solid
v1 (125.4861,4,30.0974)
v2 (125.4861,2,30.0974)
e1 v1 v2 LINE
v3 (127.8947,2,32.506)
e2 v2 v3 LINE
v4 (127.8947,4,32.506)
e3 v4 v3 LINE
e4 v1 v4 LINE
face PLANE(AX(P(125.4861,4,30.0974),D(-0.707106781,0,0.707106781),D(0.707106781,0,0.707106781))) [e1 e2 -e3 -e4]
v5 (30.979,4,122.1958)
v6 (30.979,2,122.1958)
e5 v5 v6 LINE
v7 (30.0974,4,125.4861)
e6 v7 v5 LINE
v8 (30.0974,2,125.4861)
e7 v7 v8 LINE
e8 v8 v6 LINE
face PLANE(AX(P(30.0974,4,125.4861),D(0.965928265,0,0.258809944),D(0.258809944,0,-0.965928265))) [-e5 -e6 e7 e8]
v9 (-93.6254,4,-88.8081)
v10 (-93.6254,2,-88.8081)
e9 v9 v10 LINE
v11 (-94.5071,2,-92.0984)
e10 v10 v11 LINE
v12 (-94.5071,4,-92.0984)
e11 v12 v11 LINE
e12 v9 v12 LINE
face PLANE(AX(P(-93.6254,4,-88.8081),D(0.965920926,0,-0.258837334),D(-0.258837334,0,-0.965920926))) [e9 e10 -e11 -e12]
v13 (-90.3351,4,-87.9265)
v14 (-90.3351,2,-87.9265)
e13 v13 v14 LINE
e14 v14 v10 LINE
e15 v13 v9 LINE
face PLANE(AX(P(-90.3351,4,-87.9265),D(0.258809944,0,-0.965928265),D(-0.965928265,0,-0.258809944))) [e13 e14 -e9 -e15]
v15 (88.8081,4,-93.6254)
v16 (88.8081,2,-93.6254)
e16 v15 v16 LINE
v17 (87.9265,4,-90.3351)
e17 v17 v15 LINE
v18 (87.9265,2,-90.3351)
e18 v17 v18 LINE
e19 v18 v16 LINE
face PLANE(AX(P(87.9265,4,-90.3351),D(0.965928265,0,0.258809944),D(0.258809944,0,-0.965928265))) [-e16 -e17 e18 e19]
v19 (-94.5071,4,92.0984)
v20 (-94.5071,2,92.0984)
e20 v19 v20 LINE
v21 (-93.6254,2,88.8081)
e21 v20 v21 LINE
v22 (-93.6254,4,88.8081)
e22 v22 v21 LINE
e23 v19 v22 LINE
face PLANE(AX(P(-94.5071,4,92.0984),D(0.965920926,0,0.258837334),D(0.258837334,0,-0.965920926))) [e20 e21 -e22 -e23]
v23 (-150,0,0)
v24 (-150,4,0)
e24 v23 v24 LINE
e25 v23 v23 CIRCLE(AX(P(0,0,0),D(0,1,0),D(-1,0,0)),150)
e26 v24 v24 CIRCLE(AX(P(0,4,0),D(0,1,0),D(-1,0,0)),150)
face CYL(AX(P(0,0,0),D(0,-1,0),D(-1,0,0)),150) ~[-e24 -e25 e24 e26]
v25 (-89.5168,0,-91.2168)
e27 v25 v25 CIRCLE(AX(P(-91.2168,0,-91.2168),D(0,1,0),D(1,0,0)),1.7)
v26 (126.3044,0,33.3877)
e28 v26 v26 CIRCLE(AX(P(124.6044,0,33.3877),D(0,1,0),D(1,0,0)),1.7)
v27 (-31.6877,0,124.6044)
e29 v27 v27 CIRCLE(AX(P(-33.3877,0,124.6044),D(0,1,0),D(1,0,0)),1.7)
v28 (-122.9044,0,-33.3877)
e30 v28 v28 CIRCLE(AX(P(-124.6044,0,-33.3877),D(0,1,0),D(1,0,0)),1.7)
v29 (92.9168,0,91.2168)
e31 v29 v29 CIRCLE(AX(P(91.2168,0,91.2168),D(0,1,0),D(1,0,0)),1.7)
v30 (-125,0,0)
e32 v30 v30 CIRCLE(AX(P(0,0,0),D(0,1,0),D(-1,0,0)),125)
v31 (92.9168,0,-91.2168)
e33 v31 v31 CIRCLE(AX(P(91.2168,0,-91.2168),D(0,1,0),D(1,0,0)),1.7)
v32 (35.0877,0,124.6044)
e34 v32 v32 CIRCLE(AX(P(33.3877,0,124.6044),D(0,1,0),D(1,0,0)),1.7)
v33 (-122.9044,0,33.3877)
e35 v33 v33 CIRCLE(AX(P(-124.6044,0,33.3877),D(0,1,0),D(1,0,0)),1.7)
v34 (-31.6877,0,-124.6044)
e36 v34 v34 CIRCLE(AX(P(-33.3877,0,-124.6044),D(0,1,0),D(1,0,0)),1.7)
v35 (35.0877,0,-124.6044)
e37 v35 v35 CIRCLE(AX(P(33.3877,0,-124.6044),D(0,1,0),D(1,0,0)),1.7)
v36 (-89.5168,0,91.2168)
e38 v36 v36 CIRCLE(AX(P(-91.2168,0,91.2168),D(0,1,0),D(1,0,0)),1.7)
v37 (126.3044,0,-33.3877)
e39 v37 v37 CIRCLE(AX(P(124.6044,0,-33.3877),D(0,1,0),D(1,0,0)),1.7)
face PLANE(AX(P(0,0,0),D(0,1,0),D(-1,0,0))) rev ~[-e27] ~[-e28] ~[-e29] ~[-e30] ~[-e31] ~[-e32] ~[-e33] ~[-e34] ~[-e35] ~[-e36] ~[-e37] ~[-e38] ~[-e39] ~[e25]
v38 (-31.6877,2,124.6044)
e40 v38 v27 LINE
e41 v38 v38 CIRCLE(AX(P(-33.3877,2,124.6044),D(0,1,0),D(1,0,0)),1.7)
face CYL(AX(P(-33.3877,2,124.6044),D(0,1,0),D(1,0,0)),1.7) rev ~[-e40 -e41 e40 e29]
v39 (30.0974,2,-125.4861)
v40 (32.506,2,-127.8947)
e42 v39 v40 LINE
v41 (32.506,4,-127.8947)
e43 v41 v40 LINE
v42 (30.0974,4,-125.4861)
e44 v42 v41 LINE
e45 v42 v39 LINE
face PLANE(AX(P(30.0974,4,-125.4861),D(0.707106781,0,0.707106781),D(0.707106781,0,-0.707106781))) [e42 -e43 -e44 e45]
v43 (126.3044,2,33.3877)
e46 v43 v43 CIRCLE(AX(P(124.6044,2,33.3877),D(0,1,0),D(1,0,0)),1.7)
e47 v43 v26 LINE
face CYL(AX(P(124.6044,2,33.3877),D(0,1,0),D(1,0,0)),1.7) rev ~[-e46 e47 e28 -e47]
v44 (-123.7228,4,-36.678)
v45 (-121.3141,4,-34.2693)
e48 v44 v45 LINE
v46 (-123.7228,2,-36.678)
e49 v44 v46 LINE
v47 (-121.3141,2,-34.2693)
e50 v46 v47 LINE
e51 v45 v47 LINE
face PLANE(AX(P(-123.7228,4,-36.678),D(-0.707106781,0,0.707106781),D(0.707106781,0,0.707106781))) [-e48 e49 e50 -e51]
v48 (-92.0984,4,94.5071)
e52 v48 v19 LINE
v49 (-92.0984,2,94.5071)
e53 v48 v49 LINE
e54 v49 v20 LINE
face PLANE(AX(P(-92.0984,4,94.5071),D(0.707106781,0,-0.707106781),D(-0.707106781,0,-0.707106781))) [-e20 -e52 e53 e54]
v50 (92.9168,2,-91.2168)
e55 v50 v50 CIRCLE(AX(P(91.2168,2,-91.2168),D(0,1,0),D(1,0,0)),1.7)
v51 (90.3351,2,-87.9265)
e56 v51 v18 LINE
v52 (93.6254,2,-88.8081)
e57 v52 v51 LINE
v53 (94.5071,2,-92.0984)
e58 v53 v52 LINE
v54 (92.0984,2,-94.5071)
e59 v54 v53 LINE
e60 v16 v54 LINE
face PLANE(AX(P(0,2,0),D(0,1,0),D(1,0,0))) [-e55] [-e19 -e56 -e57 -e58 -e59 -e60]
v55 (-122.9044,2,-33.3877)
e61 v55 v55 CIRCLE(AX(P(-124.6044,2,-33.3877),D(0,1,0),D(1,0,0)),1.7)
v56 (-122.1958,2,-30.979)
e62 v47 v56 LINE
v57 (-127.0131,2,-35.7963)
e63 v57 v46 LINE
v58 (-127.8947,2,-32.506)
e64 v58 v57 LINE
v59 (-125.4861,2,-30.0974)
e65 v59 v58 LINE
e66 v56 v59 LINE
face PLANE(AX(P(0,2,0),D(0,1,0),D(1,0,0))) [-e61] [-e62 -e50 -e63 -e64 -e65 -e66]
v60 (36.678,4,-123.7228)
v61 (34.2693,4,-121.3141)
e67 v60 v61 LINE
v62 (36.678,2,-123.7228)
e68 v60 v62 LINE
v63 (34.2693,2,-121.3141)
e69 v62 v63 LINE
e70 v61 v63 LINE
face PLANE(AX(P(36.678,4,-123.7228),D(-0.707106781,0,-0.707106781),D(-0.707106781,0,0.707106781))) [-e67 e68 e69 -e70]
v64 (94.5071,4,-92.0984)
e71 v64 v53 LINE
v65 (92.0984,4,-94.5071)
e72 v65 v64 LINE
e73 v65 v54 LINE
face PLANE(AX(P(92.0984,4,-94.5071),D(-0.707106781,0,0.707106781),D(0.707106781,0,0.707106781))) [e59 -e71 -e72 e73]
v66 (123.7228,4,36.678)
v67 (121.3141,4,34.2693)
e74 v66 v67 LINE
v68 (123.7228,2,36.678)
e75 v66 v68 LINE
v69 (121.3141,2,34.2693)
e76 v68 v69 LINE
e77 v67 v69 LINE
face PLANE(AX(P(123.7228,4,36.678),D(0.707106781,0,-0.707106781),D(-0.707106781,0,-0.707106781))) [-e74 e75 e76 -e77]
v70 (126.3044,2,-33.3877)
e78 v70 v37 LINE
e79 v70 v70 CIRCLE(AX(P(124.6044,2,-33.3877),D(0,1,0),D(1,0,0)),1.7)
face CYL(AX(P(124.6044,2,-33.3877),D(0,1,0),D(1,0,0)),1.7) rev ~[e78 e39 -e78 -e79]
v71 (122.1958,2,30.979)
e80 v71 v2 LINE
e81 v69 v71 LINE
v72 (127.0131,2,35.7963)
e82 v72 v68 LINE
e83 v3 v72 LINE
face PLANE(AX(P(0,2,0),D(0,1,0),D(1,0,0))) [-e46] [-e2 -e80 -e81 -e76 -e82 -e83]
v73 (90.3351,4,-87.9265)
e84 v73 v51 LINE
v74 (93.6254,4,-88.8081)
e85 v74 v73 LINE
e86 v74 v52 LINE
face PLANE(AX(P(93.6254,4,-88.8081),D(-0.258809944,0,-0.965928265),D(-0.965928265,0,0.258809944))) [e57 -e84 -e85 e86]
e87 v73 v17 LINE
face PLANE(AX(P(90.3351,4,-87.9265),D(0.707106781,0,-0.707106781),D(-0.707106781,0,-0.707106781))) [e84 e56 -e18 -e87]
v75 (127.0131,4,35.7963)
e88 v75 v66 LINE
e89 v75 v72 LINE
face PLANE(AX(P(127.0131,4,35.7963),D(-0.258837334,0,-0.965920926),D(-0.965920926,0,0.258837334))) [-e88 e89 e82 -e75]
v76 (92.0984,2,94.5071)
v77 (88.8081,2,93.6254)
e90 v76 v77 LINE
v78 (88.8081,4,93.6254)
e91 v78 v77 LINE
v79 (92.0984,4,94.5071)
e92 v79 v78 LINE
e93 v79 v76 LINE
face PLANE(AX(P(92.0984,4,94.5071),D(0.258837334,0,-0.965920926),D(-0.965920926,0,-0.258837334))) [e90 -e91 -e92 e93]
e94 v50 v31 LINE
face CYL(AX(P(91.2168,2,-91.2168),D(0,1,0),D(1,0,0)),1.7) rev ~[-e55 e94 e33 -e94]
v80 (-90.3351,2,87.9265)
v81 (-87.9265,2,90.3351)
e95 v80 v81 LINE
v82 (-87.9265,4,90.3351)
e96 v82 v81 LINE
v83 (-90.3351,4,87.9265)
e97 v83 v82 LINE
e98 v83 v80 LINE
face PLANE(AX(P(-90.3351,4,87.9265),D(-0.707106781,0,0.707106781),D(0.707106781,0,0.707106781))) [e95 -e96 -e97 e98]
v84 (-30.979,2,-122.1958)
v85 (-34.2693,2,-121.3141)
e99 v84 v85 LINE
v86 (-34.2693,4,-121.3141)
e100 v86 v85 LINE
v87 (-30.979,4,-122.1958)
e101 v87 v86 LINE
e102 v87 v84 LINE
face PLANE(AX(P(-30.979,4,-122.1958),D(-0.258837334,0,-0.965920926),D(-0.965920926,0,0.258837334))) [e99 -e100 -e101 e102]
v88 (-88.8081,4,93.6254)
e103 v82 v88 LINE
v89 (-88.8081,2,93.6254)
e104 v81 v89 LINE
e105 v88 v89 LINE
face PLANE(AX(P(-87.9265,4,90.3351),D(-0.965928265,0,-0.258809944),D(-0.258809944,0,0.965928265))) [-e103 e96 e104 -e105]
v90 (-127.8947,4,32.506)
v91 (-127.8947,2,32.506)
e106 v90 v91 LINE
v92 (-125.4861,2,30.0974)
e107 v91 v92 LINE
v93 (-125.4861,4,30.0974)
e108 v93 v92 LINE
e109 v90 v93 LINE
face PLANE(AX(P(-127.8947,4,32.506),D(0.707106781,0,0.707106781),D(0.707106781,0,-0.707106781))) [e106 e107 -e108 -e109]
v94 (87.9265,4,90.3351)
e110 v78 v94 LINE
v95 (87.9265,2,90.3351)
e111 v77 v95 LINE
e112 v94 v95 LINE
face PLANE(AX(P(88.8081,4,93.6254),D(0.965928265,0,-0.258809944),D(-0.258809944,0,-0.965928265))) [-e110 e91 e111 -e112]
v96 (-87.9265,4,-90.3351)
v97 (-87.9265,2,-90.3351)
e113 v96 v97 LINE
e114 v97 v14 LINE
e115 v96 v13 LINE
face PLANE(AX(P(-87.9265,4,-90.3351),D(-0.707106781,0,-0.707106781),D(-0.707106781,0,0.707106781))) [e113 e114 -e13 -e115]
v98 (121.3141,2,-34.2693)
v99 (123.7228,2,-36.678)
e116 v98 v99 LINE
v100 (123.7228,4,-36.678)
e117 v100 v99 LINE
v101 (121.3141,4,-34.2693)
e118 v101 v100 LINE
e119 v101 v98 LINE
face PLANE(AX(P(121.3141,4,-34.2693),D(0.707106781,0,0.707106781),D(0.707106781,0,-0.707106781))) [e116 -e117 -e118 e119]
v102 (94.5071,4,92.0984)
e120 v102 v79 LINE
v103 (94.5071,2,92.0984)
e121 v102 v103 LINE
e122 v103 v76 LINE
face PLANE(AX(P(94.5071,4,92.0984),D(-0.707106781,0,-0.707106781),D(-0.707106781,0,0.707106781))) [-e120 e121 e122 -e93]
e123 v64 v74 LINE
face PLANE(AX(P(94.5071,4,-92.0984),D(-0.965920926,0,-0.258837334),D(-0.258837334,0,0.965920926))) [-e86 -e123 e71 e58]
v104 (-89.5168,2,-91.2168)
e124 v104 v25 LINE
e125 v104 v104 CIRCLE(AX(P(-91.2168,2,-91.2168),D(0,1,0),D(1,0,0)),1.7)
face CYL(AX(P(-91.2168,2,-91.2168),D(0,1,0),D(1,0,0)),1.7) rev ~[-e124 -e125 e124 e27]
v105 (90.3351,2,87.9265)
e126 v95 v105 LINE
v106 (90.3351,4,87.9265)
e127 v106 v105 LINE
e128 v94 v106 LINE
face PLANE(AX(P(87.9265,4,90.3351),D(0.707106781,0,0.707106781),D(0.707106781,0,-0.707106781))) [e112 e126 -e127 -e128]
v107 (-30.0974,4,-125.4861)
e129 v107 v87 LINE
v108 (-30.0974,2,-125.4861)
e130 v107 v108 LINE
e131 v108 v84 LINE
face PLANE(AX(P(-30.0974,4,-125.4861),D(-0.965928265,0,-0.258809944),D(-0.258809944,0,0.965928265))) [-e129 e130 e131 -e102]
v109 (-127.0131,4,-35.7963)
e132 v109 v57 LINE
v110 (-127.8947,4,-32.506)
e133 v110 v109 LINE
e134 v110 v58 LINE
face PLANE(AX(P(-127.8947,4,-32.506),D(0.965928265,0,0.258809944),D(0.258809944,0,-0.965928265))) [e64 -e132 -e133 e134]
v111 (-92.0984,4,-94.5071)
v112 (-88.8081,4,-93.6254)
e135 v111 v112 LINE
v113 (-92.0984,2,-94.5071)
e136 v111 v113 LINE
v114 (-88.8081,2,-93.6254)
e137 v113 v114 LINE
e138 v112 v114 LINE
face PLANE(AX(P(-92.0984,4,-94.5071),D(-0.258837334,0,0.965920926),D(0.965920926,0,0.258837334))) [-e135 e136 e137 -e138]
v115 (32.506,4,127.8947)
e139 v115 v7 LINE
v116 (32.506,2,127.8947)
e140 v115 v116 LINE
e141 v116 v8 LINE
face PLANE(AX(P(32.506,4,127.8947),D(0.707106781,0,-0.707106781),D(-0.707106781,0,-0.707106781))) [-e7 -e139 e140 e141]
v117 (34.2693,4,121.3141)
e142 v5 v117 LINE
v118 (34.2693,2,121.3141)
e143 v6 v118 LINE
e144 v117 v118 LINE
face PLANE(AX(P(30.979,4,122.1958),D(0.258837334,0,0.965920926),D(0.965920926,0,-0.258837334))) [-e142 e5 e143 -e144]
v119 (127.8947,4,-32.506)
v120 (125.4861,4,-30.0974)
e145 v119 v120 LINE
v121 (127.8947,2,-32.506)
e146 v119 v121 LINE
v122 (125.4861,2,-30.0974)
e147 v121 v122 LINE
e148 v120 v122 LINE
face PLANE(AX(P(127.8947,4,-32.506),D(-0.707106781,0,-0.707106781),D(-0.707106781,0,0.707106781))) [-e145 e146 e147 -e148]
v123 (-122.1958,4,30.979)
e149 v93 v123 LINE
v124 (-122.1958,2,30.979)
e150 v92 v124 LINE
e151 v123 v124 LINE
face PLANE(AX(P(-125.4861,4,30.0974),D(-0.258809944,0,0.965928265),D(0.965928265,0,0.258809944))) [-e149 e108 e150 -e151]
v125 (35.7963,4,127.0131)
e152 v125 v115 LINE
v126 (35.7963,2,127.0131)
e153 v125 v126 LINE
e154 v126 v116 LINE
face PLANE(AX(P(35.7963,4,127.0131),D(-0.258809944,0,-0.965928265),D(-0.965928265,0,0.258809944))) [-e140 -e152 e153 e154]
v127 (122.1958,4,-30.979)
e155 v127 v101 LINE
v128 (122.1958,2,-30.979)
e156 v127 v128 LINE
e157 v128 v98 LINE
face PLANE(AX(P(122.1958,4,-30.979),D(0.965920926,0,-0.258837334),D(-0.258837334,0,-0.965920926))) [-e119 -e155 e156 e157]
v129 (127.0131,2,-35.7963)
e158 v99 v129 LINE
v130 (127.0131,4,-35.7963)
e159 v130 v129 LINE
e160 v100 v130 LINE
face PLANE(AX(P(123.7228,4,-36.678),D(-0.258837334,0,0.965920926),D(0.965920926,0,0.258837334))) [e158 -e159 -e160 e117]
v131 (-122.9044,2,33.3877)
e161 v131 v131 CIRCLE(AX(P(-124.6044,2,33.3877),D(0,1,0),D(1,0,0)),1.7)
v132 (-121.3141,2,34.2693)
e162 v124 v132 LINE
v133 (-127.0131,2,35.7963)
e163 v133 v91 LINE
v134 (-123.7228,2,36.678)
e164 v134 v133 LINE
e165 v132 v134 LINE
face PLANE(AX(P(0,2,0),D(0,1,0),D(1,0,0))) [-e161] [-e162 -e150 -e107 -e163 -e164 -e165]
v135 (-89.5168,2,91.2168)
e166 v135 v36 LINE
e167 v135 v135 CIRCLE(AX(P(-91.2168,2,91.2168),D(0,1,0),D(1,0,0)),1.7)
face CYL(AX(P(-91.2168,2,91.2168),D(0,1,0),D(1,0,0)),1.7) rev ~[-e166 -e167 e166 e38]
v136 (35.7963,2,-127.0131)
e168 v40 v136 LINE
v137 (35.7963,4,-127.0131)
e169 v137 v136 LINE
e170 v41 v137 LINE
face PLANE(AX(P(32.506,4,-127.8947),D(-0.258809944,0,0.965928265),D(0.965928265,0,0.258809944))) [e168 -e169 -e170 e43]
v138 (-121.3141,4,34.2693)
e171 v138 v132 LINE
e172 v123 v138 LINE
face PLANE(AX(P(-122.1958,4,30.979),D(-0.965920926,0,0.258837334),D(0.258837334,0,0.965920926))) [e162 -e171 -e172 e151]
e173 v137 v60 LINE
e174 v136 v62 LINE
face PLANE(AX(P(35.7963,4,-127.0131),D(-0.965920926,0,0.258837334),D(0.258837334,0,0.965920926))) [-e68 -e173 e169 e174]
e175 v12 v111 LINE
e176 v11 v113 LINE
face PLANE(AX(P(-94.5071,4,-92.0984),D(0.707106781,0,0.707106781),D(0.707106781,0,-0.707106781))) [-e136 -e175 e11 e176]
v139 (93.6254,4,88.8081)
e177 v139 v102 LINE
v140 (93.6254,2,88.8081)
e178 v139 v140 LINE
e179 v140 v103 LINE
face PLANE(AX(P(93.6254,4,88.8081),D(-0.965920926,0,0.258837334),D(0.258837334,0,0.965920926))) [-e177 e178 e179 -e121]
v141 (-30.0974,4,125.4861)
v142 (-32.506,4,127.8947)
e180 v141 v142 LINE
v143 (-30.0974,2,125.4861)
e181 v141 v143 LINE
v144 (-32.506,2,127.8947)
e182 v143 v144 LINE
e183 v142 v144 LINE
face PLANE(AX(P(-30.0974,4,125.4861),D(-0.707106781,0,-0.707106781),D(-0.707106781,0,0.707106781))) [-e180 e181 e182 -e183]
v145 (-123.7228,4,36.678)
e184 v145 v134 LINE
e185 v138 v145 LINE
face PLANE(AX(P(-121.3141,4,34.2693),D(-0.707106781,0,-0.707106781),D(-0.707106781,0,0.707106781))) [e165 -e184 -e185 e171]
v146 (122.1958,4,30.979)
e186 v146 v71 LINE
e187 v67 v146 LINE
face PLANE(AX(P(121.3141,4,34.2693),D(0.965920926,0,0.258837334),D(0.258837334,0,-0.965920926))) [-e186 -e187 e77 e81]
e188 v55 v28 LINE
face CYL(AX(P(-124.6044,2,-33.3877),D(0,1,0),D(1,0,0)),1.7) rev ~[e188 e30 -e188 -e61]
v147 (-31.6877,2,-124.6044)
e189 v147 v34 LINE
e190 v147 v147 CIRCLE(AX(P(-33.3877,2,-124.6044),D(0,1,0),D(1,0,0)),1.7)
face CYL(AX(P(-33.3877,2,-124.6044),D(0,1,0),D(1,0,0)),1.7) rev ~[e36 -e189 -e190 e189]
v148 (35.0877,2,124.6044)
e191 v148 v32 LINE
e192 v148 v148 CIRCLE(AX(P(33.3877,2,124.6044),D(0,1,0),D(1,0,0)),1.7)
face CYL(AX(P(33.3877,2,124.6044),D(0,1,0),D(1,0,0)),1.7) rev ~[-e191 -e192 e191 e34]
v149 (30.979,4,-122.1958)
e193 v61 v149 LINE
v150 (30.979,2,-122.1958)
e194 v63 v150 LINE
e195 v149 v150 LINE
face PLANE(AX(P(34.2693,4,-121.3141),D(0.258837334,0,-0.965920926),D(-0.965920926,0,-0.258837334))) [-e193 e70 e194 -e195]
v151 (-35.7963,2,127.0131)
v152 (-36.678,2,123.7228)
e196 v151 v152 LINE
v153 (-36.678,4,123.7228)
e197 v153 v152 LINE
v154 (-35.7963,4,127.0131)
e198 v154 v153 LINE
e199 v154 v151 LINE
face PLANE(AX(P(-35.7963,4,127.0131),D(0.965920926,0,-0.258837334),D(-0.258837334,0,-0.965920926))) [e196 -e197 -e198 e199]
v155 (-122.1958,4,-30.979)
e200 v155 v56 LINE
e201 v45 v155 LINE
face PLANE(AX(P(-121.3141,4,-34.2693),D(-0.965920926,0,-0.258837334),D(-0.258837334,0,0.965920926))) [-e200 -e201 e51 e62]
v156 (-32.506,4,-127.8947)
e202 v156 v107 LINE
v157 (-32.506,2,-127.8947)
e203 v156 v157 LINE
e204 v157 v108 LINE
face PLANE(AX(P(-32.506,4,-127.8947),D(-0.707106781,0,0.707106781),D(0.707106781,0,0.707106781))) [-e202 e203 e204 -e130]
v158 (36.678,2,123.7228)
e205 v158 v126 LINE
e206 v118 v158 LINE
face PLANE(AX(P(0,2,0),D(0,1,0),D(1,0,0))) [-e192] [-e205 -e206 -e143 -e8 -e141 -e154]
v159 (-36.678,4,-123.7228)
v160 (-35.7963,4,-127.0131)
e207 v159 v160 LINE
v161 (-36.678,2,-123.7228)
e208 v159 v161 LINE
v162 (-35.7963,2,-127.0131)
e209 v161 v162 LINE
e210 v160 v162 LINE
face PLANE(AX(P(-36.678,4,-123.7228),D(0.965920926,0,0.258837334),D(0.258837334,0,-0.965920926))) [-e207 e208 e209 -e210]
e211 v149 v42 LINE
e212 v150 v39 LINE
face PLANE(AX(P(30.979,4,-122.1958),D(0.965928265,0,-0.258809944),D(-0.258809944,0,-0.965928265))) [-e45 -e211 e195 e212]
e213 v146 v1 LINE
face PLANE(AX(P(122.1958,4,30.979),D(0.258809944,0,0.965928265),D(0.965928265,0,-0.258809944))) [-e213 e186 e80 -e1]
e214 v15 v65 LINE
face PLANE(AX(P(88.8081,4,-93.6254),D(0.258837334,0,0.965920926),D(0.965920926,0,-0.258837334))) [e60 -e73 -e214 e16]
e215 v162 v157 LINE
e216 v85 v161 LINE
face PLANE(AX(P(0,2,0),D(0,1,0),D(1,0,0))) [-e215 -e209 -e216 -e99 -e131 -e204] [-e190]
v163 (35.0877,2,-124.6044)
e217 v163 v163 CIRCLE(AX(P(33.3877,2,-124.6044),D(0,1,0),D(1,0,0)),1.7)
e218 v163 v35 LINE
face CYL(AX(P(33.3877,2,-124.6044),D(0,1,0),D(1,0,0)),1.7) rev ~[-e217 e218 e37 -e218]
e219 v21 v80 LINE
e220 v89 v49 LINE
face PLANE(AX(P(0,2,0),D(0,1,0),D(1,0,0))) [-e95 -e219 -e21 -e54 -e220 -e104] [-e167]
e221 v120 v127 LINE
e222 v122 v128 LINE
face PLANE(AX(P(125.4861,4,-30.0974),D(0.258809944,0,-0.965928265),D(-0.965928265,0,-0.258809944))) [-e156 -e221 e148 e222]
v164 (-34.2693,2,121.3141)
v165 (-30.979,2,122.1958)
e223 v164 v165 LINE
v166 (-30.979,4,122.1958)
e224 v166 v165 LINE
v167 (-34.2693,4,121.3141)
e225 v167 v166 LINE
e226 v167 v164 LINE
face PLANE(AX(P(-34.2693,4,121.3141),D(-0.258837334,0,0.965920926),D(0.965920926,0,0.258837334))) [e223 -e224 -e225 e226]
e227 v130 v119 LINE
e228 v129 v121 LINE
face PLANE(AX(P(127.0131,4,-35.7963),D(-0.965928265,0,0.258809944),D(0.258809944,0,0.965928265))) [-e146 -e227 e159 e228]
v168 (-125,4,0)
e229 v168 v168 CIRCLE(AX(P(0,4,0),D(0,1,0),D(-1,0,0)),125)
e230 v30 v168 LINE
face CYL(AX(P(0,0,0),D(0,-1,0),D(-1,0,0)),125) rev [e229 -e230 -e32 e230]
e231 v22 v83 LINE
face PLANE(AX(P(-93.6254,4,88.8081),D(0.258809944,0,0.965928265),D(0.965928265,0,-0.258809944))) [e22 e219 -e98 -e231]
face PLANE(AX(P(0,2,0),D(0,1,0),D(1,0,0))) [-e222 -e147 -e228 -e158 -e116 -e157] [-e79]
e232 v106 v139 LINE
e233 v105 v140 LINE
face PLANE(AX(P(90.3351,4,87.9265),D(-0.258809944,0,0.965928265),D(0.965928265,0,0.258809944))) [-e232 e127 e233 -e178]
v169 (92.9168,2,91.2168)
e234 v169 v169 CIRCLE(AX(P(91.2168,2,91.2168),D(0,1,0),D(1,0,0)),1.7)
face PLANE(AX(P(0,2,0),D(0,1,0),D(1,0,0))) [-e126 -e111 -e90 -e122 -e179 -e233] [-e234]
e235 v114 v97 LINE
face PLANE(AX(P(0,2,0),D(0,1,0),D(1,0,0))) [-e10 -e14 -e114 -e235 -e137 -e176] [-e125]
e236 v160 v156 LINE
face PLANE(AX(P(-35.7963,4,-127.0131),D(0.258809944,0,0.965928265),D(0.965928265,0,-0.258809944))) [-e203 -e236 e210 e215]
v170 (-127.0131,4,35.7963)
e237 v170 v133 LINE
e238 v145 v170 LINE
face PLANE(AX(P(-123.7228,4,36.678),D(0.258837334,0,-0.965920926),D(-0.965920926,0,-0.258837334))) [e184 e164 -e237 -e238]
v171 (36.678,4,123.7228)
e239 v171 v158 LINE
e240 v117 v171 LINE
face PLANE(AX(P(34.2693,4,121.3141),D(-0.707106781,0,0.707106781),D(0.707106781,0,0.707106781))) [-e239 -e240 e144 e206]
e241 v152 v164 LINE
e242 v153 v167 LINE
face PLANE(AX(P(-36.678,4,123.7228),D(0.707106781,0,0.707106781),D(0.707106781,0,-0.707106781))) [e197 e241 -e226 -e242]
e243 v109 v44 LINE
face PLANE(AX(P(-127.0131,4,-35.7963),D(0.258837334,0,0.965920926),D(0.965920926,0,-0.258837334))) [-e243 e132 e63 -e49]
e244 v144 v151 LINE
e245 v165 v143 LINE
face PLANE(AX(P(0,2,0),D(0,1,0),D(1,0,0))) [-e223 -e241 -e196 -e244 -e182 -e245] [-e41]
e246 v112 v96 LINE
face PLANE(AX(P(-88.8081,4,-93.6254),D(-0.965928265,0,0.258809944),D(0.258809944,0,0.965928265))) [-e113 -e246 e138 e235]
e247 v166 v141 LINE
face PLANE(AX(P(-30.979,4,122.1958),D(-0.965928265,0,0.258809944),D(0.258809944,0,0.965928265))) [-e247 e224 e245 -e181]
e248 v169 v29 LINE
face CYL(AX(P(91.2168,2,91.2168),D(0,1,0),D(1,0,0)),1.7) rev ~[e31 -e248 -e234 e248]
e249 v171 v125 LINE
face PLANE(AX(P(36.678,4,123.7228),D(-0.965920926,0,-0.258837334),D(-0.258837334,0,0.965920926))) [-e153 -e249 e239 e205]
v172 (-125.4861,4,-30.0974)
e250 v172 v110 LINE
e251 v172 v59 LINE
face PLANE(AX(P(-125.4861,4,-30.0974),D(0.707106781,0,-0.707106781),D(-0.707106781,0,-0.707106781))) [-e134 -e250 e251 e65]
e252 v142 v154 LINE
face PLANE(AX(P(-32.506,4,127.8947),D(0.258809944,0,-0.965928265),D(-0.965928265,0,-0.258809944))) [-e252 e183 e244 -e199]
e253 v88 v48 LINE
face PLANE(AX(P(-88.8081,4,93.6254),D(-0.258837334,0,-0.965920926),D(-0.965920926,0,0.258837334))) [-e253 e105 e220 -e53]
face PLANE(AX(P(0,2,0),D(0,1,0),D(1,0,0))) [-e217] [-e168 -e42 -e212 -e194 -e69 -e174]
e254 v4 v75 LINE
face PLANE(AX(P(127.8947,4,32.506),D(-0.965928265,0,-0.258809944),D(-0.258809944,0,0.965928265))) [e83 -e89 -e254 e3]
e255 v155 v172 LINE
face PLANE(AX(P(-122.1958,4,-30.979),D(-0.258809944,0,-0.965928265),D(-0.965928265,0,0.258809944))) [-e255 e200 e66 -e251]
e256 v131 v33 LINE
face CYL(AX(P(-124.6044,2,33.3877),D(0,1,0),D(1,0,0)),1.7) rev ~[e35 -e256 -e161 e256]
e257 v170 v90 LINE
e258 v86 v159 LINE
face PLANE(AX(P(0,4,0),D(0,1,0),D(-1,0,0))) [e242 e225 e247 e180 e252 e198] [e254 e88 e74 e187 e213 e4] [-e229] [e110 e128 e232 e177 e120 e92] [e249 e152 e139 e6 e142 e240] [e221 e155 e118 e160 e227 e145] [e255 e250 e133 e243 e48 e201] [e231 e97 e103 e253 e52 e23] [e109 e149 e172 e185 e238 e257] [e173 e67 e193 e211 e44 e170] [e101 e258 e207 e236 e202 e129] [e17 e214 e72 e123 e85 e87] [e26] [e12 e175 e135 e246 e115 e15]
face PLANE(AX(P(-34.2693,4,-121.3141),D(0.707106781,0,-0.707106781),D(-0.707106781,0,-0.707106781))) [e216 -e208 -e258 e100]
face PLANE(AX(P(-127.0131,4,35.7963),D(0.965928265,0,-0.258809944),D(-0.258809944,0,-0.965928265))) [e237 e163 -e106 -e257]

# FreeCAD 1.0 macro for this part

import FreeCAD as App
import Part
import Sketcher
Q = App.Units.Quantity

doc = App.newDocument("Part")
params = doc.addObject("Spreadsheet::Sheet", "Params")
for row, (alias, value) in enumerate([
    ("sketch1_diameter", "300 mm"),
    ("sketch1_diameter2", "250 mm"),
    ("pad1_length", "4 mm"),
    ("pocket1_length", "2 mm"),
    ("sketch3_diameter", "3.4 mm"),
], start=1):
    params.set(f"A{row}", alias)
    params.set(f"B{row}", "=" + value)
    params.setAlias(f"B{row}", alias)

body = doc.addObject("PartDesign::Body", "Body")

sketch1 = body.newObject("Sketcher::SketchObject", "Sketch")
sketch1.AttachmentSupport = (doc.getObject("XZ_Plane"), [""])
sketch1.MapMode = "FlatFace"
sketch1.addGeometry(Part.Circle(App.Vector(0, 0, 0), App.Vector(0, 0, 1), 150), False)
sketch1.addGeometry(Part.Circle(App.Vector(0, 0, 0), App.Vector(0, 0, 1), 125), False)
sketch1.addConstraint(Sketcher.Constraint("Coincident", 0, 3, -1, 1))
sketch1.addConstraint(Sketcher.Constraint("Coincident", 1, 3, -1, 1))
sketch1.addConstraint(Sketcher.Constraint("Diameter", 0, Q("300 mm")))
sketch1.addConstraint(Sketcher.Constraint("Diameter", 1, Q("250 mm")))
sketch1.setExpression("Constraints[2]", "Params.sketch1_diameter")
sketch1.setExpression("Constraints[3]", "Params.sketch1_diameter2")
pad1 = body.newObject("PartDesign::Pad", "Pad")
pad1.Profile = sketch1
pad1.setExpression("Length", "Params.pad1_length")
pad1.Reversed = True

sketch2 = body.newObject("Sketcher::SketchObject", "Sketch001")
sketch2.AttachmentSupport = (doc.getObject("XZ_Plane"), [""])
sketch2.MapMode = "FlatFace"
sketch2.AttachmentOffset = App.Placement(App.Vector(0, 0, -4), App.Rotation())
sketch2.addGeometry(Part.LineSegment(App.Vector(122.1958, -30.979, 0), App.Vector(125.4861, -30.0974, 0)), False)
sketch2.addGeometry(Part.LineSegment(App.Vector(125.4861, -30.0974, 0), App.Vector(127.8947, -32.506, 0)), False)
sketch2.addGeometry(Part.LineSegment(App.Vector(127.8947, -32.506, 0), App.Vector(127.0131, -35.7963, 0)), False)
sketch2.addGeometry(Part.LineSegment(App.Vector(127.0131, -35.7963, 0), App.Vector(123.7228, -36.678, 0)), False)
sketch2.addGeometry(Part.LineSegment(App.Vector(123.7228, -36.678, 0), App.Vector(121.3141, -34.2693, 0)), False)
sketch2.addGeometry(Part.LineSegment(App.Vector(121.3141, -34.2693, 0), App.Vector(122.1958, -30.979, 0)), False)
sketch2.addGeometry(Part.LineSegment(App.Vector(88.8081, -93.6254, 0), App.Vector(87.9265, -90.3351, 0)), False)
sketch2.addGeometry(Part.LineSegment(App.Vector(87.9265, -90.3351, 0), App.Vector(90.3351, -87.9265, 0)), False)
sketch2.addGeometry(Part.LineSegment(App.Vector(90.3351, -87.9265, 0), App.Vector(93.6254, -88.8081, 0)), False)
sketch2.addGeometry(Part.LineSegment(App.Vector(93.6254, -88.8081, 0), App.Vector(94.5071, -92.0984, 0)), False)
sketch2.addGeometry(Part.LineSegment(App.Vector(94.5071, -92.0984, 0), App.Vector(92.0984, -94.5071, 0)), False)
sketch2.addGeometry(Part.LineSegment(App.Vector(92.0984, -94.5071, 0), App.Vector(88.8081, -93.6254, 0)), False)
sketch2.addGeometry(Part.LineSegment(App.Vector(30.0974, -125.4861, 0), App.Vector(30.979, -122.1958, 0)), False)
sketch2.addGeometry(Part.LineSegment(App.Vector(30.979, -122.1958, 0), App.Vector(34.2693, -121.3141, 0)), False)
sketch2.addGeometry(Part.LineSegment(App.Vector(34.2693, -121.3141, 0), App.Vector(36.678, -123.7228, 0)), False)
sketch2.addGeometry(Part.LineSegment(App.Vector(36.678, -123.7228, 0), App.Vector(35.7963, -127.0131, 0)), False)
sketch2.addGeometry(Part.LineSegment(App.Vector(35.7963, -127.0131, 0), App.Vector(32.506, -127.8947, 0)), False)
sketch2.addGeometry(Part.LineSegment(App.Vector(32.506, -127.8947, 0), App.Vector(30.0974, -125.4861, 0)), False)
sketch2.addGeometry(Part.LineSegment(App.Vector(-36.678, -123.7228, 0), App.Vector(-34.2693, -121.3141, 0)), False)
sketch2.addGeometry(Part.LineSegment(App.Vector(-34.2693, -121.3141, 0), App.Vector(-30.979, -122.1958, 0)), False)
sketch2.addGeometry(Part.LineSegment(App.Vector(-30.979, -122.1958, 0), App.Vector(-30.0974, -125.4861, 0)), False)
sketch2.addGeometry(Part.LineSegment(App.Vector(-30.0974, -125.4861, 0), App.Vector(-32.506, -127.8947, 0)), False)
sketch2.addGeometry(Part.LineSegment(App.Vector(-32.506, -127.8947, 0), App.Vector(-35.7963, -127.0131, 0)), False)
sketch2.addGeometry(Part.LineSegment(App.Vector(-35.7963, -127.0131, 0), App.Vector(-36.678, -123.7228, 0)), False)
sketch2.addGeometry(Part.LineSegment(App.Vector(-93.6254, -88.8081, 0), App.Vector(-90.3351, -87.9265, 0)), False)
sketch2.addGeometry(Part.LineSegment(App.Vector(-90.3351, -87.9265, 0), App.Vector(-87.9265, -90.3351, 0)), False)
sketch2.addGeometry(Part.LineSegment(App.Vector(-87.9265, -90.3351, 0), App.Vector(-88.8081, -93.6254, 0)), False)
sketch2.addGeometry(Part.LineSegment(App.Vector(-88.8081, -93.6254, 0), App.Vector(-92.0984, -94.5071, 0)), False)
sketch2.addGeometry(Part.LineSegment(App.Vector(-92.0984, -94.5071, 0), App.Vector(-94.5071, -92.0984, 0)), False)
sketch2.addGeometry(Part.LineSegment(App.Vector(-94.5071, -92.0984, 0), App.Vector(-93.6254, -88.8081, 0)), False)
sketch2.addGeometry(Part.LineSegment(App.Vector(-125.4861, -30.0974, 0), App.Vector(-122.1958, -30.979, 0)), False)
sketch2.addGeometry(Part.LineSegment(App.Vector(-122.1958, -30.979, 0), App.Vector(-121.3141, -34.2693, 0)), False)
sketch2.addGeometry(Part.LineSegment(App.Vector(-121.3141, -34.2693, 0), App.Vector(-123.7228, -36.678, 0)), False)
sketch2.addGeometry(Part.LineSegment(App.Vector(-123.7228, -36.678, 0), App.Vector(-127.0131, -35.7963, 0)), False)
sketch2.addGeometry(Part.LineSegment(App.Vector(-127.0131, -35.7963, 0), App.Vector(-127.8947, -32.506, 0)), False)
sketch2.addGeometry(Part.LineSegment(App.Vector(-127.8947, -32.506, 0), App.Vector(-125.4861, -30.0974, 0)), False)
sketch2.addGeometry(Part.LineSegment(App.Vector(-123.7228, 36.678, 0), App.Vector(-121.3141, 34.2693, 0)), False)
sketch2.addGeometry(Part.LineSegment(App.Vector(-121.3141, 34.2693, 0), App.Vector(-122.1958, 30.979, 0)), False)
sketch2.addGeometry(Part.LineSegment(App.Vector(-122.1958, 30.979, 0), App.Vector(-125.4861, 30.0974, 0)), False)
sketch2.addGeometry(Part.LineSegment(App.Vector(-125.4861, 30.0974, 0), App.Vector(-127.8947, 32.506, 0)), False)
sketch2.addGeometry(Part.LineSegment(App.Vector(-127.8947, 32.506, 0), App.Vector(-127.0131, 35.7963, 0)), False)
sketch2.addGeometry(Part.LineSegment(App.Vector(-127.0131, 35.7963, 0), App.Vector(-123.7228, 36.678, 0)), False)
sketch2.addGeometry(Part.LineSegment(App.Vector(-88.8081, 93.6254, 0), App.Vector(-87.9265, 90.3351, 0)), False)
sketch2.addGeometry(Part.LineSegment(App.Vector(-87.9265, 90.3351, 0), App.Vector(-90.3351, 87.9265, 0)), False)
sketch2.addGeometry(Part.LineSegment(App.Vector(-90.3351, 87.9265, 0), App.Vector(-93.6254, 88.8081, 0)), False)
sketch2.addGeometry(Part.LineSegment(App.Vector(-93.6254, 88.8081, 0), App.Vector(-94.5071, 92.0984, 0)), False)
sketch2.addGeometry(Part.LineSegment(App.Vector(-94.5071, 92.0984, 0), App.Vector(-92.0984, 94.5071, 0)), False)
sketch2.addGeometry(Part.LineSegment(App.Vector(-92.0984, 94.5071, 0), App.Vector(-88.8081, 93.6254, 0)), False)
sketch2.addGeometry(Part.LineSegment(App.Vector(-30.0974, 125.4861, 0), App.Vector(-30.979, 122.1958, 0)), False)
sketch2.addGeometry(Part.LineSegment(App.Vector(-30.979, 122.1958, 0), App.Vector(-34.2693, 121.3141, 0)), False)
sketch2.addGeometry(Part.LineSegment(App.Vector(-34.2693, 121.3141, 0), App.Vector(-36.678, 123.7228, 0)), False)
sketch2.addGeometry(Part.LineSegment(App.Vector(-36.678, 123.7228, 0), App.Vector(-35.7963, 127.0131, 0)), False)
sketch2.addGeometry(Part.LineSegment(App.Vector(-35.7963, 127.0131, 0), App.Vector(-32.506, 127.8947, 0)), False)
sketch2.addGeometry(Part.LineSegment(App.Vector(-32.506, 127.8947, 0), App.Vector(-30.0974, 125.4861, 0)), False)
sketch2.addGeometry(Part.LineSegment(App.Vector(36.678, 123.7228, 0), App.Vector(34.2693, 121.3141, 0)), False)
sketch2.addGeometry(Part.LineSegment(App.Vector(34.2693, 121.3141, 0), App.Vector(30.979, 122.1958, 0)), False)
sketch2.addGeometry(Part.LineSegment(App.Vector(30.979, 122.1958, 0), App.Vector(30.0974, 125.4861, 0)), False)
sketch2.addGeometry(Part.LineSegment(App.Vector(30.0974, 125.4861, 0), App.Vector(32.506, 127.8947, 0)), False)
sketch2.addGeometry(Part.LineSegment(App.Vector(32.506, 127.8947, 0), App.Vector(35.7963, 127.0131, 0)), False)
sketch2.addGeometry(Part.LineSegment(App.Vector(35.7963, 127.0131, 0), App.Vector(36.678, 123.7228, 0)), False)
sketch2.addGeometry(Part.LineSegment(App.Vector(93.6254, 88.8081, 0), App.Vector(90.3351, 87.9265, 0)), False)
sketch2.addGeometry(Part.LineSegment(App.Vector(90.3351, 87.9265, 0), App.Vector(87.9265, 90.3351, 0)), False)
sketch2.addGeometry(Part.LineSegment(App.Vector(87.9265, 90.3351, 0), App.Vector(88.8081, 93.6254, 0)), False)
sketch2.addGeometry(Part.LineSegment(App.Vector(88.8081, 93.6254, 0), App.Vector(92.0984, 94.5071, 0)), False)
sketch2.addGeometry(Part.LineSegment(App.Vector(92.0984, 94.5071, 0), App.Vector(94.5071, 92.0984, 0)), False)
sketch2.addGeometry(Part.LineSegment(App.Vector(94.5071, 92.0984, 0), App.Vector(93.6254, 88.8081, 0)), False)
sketch2.addGeometry(Part.LineSegment(App.Vector(125.4861, 30.0974, 0), App.Vector(122.1958, 30.979, 0)), False)
sketch2.addGeometry(Part.LineSegment(App.Vector(122.1958, 30.979, 0), App.Vector(121.3141, 34.2693, 0)), False)
sketch2.addGeometry(Part.LineSegment(App.Vector(121.3141, 34.2693, 0), App.Vector(123.7228, 36.678, 0)), False)
sketch2.addGeometry(Part.LineSegment(App.Vector(123.7228, 36.678, 0), App.Vector(127.0131, 35.7963, 0)), False)
sketch2.addGeometry(Part.LineSegment(App.Vector(127.0131, 35.7963, 0), App.Vector(127.8947, 32.506, 0)), False)
sketch2.addGeometry(Part.LineSegment(App.Vector(127.8947, 32.506, 0), App.Vector(125.4861, 30.0974, 0)), False)
sketch2.addConstraint(Sketcher.Constraint("Coincident", 0, 2, 1, 1))
sketch2.addConstraint(Sketcher.Constraint("Coincident", 1, 2, 2, 1))
sketch2.addConstraint(Sketcher.Constraint("Coincident", 2, 2, 3, 1))
sketch2.addConstraint(Sketcher.Constraint("Coincident", 3, 2, 4, 1))
sketch2.addConstraint(Sketcher.Constraint("Coincident", 4, 2, 5, 1))
sketch2.addConstraint(Sketcher.Constraint("Coincident", 5, 2, 0, 1))
sketch2.addConstraint(Sketcher.Constraint("Coincident", 6, 2, 7, 1))
sketch2.addConstraint(Sketcher.Constraint("Coincident", 7, 2, 8, 1))
sketch2.addConstraint(Sketcher.Constraint("Coincident", 8, 2, 9, 1))
sketch2.addConstraint(Sketcher.Constraint("Coincident", 9, 2, 10, 1))
sketch2.addConstraint(Sketcher.Constraint("Coincident", 10, 2, 11, 1))
sketch2.addConstraint(Sketcher.Constraint("Coincident", 11, 2, 6, 1))
sketch2.addConstraint(Sketcher.Constraint("Coincident", 12, 2, 13, 1))
sketch2.addConstraint(Sketcher.Constraint("Coincident", 13, 2, 14, 1))
sketch2.addConstraint(Sketcher.Constraint("Coincident", 14, 2, 15, 1))
sketch2.addConstraint(Sketcher.Constraint("Coincident", 15, 2, 16, 1))
sketch2.addConstraint(Sketcher.Constraint("Coincident", 16, 2, 17, 1))
sketch2.addConstraint(Sketcher.Constraint("Coincident", 17, 2, 12, 1))
sketch2.addConstraint(Sketcher.Constraint("Coincident", 18, 2, 19, 1))
sketch2.addConstraint(Sketcher.Constraint("Coincident", 19, 2, 20, 1))
sketch2.addConstraint(Sketcher.Constraint("Coincident", 20, 2, 21, 1))
sketch2.addConstraint(Sketcher.Constraint("Coincident", 21, 2, 22, 1))
sketch2.addConstraint(Sketcher.Constraint("Coincident", 22, 2, 23, 1))
sketch2.addConstraint(Sketcher.Constraint("Coincident", 23, 2, 18, 1))
sketch2.addConstraint(Sketcher.Constraint("Coincident", 24, 2, 25, 1))
sketch2.addConstraint(Sketcher.Constraint("Coincident", 25, 2, 26, 1))
sketch2.addConstraint(Sketcher.Constraint("Coincident", 26, 2, 27, 1))
sketch2.addConstraint(Sketcher.Constraint("Coincident", 27, 2, 28, 1))
sketch2.addConstraint(Sketcher.Constraint("Coincident", 28, 2, 29, 1))
sketch2.addConstraint(Sketcher.Constraint("Coincident", 29, 2, 24, 1))
sketch2.addConstraint(Sketcher.Constraint("Coincident", 30, 2, 31, 1))
sketch2.addConstraint(Sketcher.Constraint("Coincident", 31, 2, 32, 1))
sketch2.addConstraint(Sketcher.Constraint("Coincident", 32, 2, 33, 1))
sketch2.addConstraint(Sketcher.Constraint("Coincident", 33, 2, 34, 1))
sketch2.addConstraint(Sketcher.Constraint("Coincident", 34, 2, 35, 1))
sketch2.addConstraint(Sketcher.Constraint("Coincident", 35, 2, 30, 1))
sketch2.addConstraint(Sketcher.Constraint("Coincident", 36, 2, 37, 1))
sketch2.addConstraint(Sketcher.Constraint("Coincident", 37, 2, 38, 1))
sketch2.addConstraint(Sketcher.Constraint("Coincident", 38, 2, 39, 1))
sketch2.addConstraint(Sketcher.Constraint("Coincident", 39, 2, 40, 1))
sketch2.addConstraint(Sketcher.Constraint("Coincident", 40, 2, 41, 1))
sketch2.addConstraint(Sketcher.Constraint("Coincident", 41, 2, 36, 1))
sketch2.addConstraint(Sketcher.Constraint("Coincident", 42, 2, 43, 1))
sketch2.addConstraint(Sketcher.Constraint("Coincident", 43, 2, 44, 1))
sketch2.addConstraint(Sketcher.Constraint("Coincident", 44, 2, 45, 1))
sketch2.addConstraint(Sketcher.Constraint("Coincident", 45, 2, 46, 1))
sketch2.addConstraint(Sketcher.Constraint("Coincident", 46, 2, 47, 1))
sketch2.addConstraint(Sketcher.Constraint("Coincident", 47, 2, 42, 1))
sketch2.addConstraint(Sketcher.Constraint("Coincident", 48, 2, 49, 1))
sketch2.addConstraint(Sketcher.Constraint("Coincident", 49, 2, 50, 1))
sketch2.addConstraint(Sketcher.Constraint("Coincident", 50, 2, 51, 1))
sketch2.addConstraint(Sketcher.Constraint("Coincident", 51, 2, 52, 1))
sketch2.addConstraint(Sketcher.Constraint("Coincident", 52, 2, 53, 1))
sketch2.addConstraint(Sketcher.Constraint("Coincident", 53, 2, 48, 1))
sketch2.addConstraint(Sketcher.Constraint("Coincident", 54, 2, 55, 1))
sketch2.addConstraint(Sketcher.Constraint("Coincident", 55, 2, 56, 1))
sketch2.addConstraint(Sketcher.Constraint("Coincident", 56, 2, 57, 1))
sketch2.addConstraint(Sketcher.Constraint("Coincident", 57, 2, 58, 1))
sketch2.addConstraint(Sketcher.Constraint("Coincident", 58, 2, 59, 1))
sketch2.addConstraint(Sketcher.Constraint("Coincident", 59, 2, 54, 1))
sketch2.addConstraint(Sketcher.Constraint("Coincident", 60, 2, 61, 1))
sketch2.addConstraint(Sketcher.Constraint("Coincident", 61, 2, 62, 1))
sketch2.addConstraint(Sketcher.Constraint("Coincident", 62, 2, 63, 1))
sketch2.addConstraint(Sketcher.Constraint("Coincident", 63, 2, 64, 1))
sketch2.addConstraint(Sketcher.Constraint("Coincident", 64, 2, 65, 1))
sketch2.addConstraint(Sketcher.Constraint("Coincident", 65, 2, 60, 1))
sketch2.addConstraint(Sketcher.Constraint("Coincident", 66, 2, 67, 1))
sketch2.addConstraint(Sketcher.Constraint("Coincident", 67, 2, 68, 1))
sketch2.addConstraint(Sketcher.Constraint("Coincident", 68, 2, 69, 1))
sketch2.addConstraint(Sketcher.Constraint("Coincident", 69, 2, 70, 1))
sketch2.addConstraint(Sketcher.Constraint("Coincident", 70, 2, 71, 1))
sketch2.addConstraint(Sketcher.Constraint("Coincident", 71, 2, 66, 1))
sketch2.addConstraint(Sketcher.Constraint("Symmetric", 4, 2, 36, 2, -1, 1))
sketch2.addConstraint(Sketcher.Constraint("Symmetric", 5, 2, 37, 2, -1, 1))
sketch2.addConstraint(Sketcher.Constraint("Symmetric", 0, 2, 38, 2, -1, 1))
sketch2.addConstraint(Sketcher.Constraint("Symmetric", 1, 2, 39, 2, -1, 1))
sketch2.addConstraint(Sketcher.Constraint("Symmetric", 2, 2, 40, 2, -1, 1))
sketch2.addConstraint(Sketcher.Constraint("Symmetric", 3, 2, 41, 2, -1, 1))
sketch2.addConstraint(Sketcher.Constraint("Symmetric", 6, 2, 42, 2, -1, 1))
sketch2.addConstraint(Sketcher.Constraint("Symmetric", 7, 2, 43, 2, -1, 1))
sketch2.addConstraint(Sketcher.Constraint("Symmetric", 8, 2, 44, 2, -1, 1))
sketch2.addConstraint(Sketcher.Constraint("Symmetric", 9, 2, 45, 2, -1, 1))
sketch2.addConstraint(Sketcher.Constraint("Symmetric", 10, 2, 46, 2, -1, 1))
sketch2.addConstraint(Sketcher.Constraint("Symmetric", 11, 2, 47, 2, -1, 1))
sketch2.addConstraint(Sketcher.Constraint("Symmetric", 12, 2, 48, 2, -1, 1))
sketch2.addConstraint(Sketcher.Constraint("Symmetric", 13, 2, 49, 2, -1, 1))
sketch2.addConstraint(Sketcher.Constraint("Symmetric", 14, 2, 50, 2, -1, 1))
sketch2.addConstraint(Sketcher.Constraint("Symmetric", 15, 2, 51, 2, -1, 1))
sketch2.addConstraint(Sketcher.Constraint("Symmetric", 16, 2, 52, 2, -1, 1))
sketch2.addConstraint(Sketcher.Constraint("Symmetric", 17, 2, 53, 2, -1, 1))
sketch2.addConstraint(Sketcher.Constraint("Symmetric", 18, 2, 54, 2, -1, 1))
sketch2.addConstraint(Sketcher.Constraint("Symmetric", 19, 2, 55, 2, -1, 1))
sketch2.addConstraint(Sketcher.Constraint("Symmetric", 20, 2, 56, 2, -1, 1))
sketch2.addConstraint(Sketcher.Constraint("Symmetric", 21, 2, 57, 2, -1, 1))
sketch2.addConstraint(Sketcher.Constraint("Symmetric", 22, 2, 58, 2, -1, 1))
sketch2.addConstraint(Sketcher.Constraint("Symmetric", 23, 2, 59, 2, -1, 1))
sketch2.addConstraint(Sketcher.Constraint("Symmetric", 24, 2, 60, 2, -1, 1))
sketch2.addConstraint(Sketcher.Constraint("Symmetric", 25, 2, 61, 2, -1, 1))
sketch2.addConstraint(Sketcher.Constraint("Symmetric", 26, 2, 62, 2, -1, 1))
sketch2.addConstraint(Sketcher.Constraint("Symmetric", 27, 2, 63, 2, -1, 1))
sketch2.addConstraint(Sketcher.Constraint("Symmetric", 28, 2, 64, 2, -1, 1))
sketch2.addConstraint(Sketcher.Constraint("Symmetric", 29, 2, 65, 2, -1, 1))
sketch2.addConstraint(Sketcher.Constraint("Symmetric", 30, 2, 66, 2, -1, 1))
sketch2.addConstraint(Sketcher.Constraint("Symmetric", 31, 2, 67, 2, -1, 1))
sketch2.addConstraint(Sketcher.Constraint("Symmetric", 32, 2, 68, 2, -1, 1))
sketch2.addConstraint(Sketcher.Constraint("Symmetric", 33, 2, 69, 2, -1, 1))
sketch2.addConstraint(Sketcher.Constraint("Symmetric", 34, 2, 70, 2, -1, 1))
sketch2.addConstraint(Sketcher.Constraint("Symmetric", 35, 2, 71, 2, -1, 1))
sketch2.addConstraint(Sketcher.Constraint("Symmetric", 13, 2, 18, 2, -2))
sketch2.addConstraint(Sketcher.Constraint("Symmetric", 12, 2, 19, 2, -2))
sketch2.addConstraint(Sketcher.Constraint("Symmetric", 17, 2, 20, 2, -2))
sketch2.addConstraint(Sketcher.Constraint("Symmetric", 16, 2, 21, 2, -2))
sketch2.addConstraint(Sketcher.Constraint("Symmetric", 15, 2, 22, 2, -2))
sketch2.addConstraint(Sketcher.Constraint("Symmetric", 14, 2, 23, 2, -2))
sketch2.addConstraint(Sketcher.Constraint("Symmetric", 7, 2, 24, 2, -2))
sketch2.addConstraint(Sketcher.Constraint("Symmetric", 6, 2, 25, 2, -2))
sketch2.addConstraint(Sketcher.Constraint("Symmetric", 11, 2, 26, 2, -2))
sketch2.addConstraint(Sketcher.Constraint("Symmetric", 10, 2, 27, 2, -2))
sketch2.addConstraint(Sketcher.Constraint("Symmetric", 9, 2, 28, 2, -2))
sketch2.addConstraint(Sketcher.Constraint("Symmetric", 8, 2, 29, 2, -2))
sketch2.addConstraint(Sketcher.Constraint("Symmetric", 5, 2, 30, 2, -2))
sketch2.addConstraint(Sketcher.Constraint("Symmetric", 4, 2, 31, 2, -2))
sketch2.addConstraint(Sketcher.Constraint("Symmetric", 3, 2, 32, 2, -2))
sketch2.addConstraint(Sketcher.Constraint("Symmetric", 2, 2, 33, 2, -2))
sketch2.addConstraint(Sketcher.Constraint("Symmetric", 1, 2, 34, 2, -2))
sketch2.addConstraint(Sketcher.Constraint("Symmetric", 0, 2, 35, 2, -2))
sketch2.addConstraint(Sketcher.Constraint("Parallel", 0, 3))
sketch2.addConstraint(Sketcher.Constraint("Parallel", 1, 4))
sketch2.addConstraint(Sketcher.Constraint("Parallel", 2, 5))
sketch2.addConstraint(Sketcher.Constraint("Perpendicular", 3, 6))
sketch2.addConstraint(Sketcher.Constraint("Perpendicular", 4, 7))
sketch2.addConstraint(Sketcher.Constraint("Perpendicular", 5, 8))
sketch2.addConstraint(Sketcher.Constraint("Parallel", 6, 9))
sketch2.addConstraint(Sketcher.Constraint("Parallel", 7, 10))
sketch2.addConstraint(Sketcher.Constraint("Parallel", 8, 11))
sketch2.addConstraint(Sketcher.Constraint("Perpendicular", 11, 12))
sketch2.addConstraint(Sketcher.Constraint("Perpendicular", 9, 13))
sketch2.addConstraint(Sketcher.Constraint("Perpendicular", 10, 14))
sketch2.addConstraint(Sketcher.Constraint("Parallel", 12, 15))
sketch2.addConstraint(Sketcher.Constraint("Parallel", 13, 16))
sketch2.addConstraint(Sketcher.Constraint("Parallel", 14, 17))
sketch2.addConstraint(Sketcher.Constraint("Perpendicular", 17, 18))
sketch2.addConstraint(Sketcher.Constraint("Perpendicular", 15, 19))
sketch2.addConstraint(Sketcher.Constraint("Equal", 0, 1))
sketch2.addConstraint(Sketcher.Constraint("Equal", 1, 2))
sketch2.addConstraint(Sketcher.Constraint("Equal", 2, 3))
sketch2.addConstraint(Sketcher.Constraint("Equal", 5, 6))
sketch2.addConstraint(Sketcher.Constraint("Equal", 6, 7))
sketch2.addConstraint(Sketcher.Constraint("Equal", 7, 8))
sketch2.addConstraint(Sketcher.Constraint("Equal", 8, 9))
sketch2.addConstraint(Sketcher.Constraint("Equal", 11, 12))
sketch2.addConstraint(Sketcher.Constraint("Equal", 12, 13))
sketch2.addConstraint(Sketcher.Constraint("Equal", 13, 14))
sketch2.addConstraint(Sketcher.Constraint("Equal", 14, 15))
sketch2.addConstraint(Sketcher.Constraint("Angle", 0, Q("14.9995 deg")))
sketch2.addConstraint(Sketcher.Constraint("DistanceX", -1, 1, 0, 2, Q("125.486 mm")))
sketch2.addConstraint(Sketcher.Constraint("DistanceY", 1, 2, -1, 1, Q("32.506 mm")))
sketch2.addConstraint(Sketcher.Constraint("DistanceX", -1, 1, 2, 2, Q("127.013 mm")))
sketch2.addConstraint(Sketcher.Constraint("DistanceY", 6, 2, -1, 1, Q("90.335 mm")))
sketch2.addConstraint(Sketcher.Constraint("DistanceX", -1, 1, 7, 2, Q("90.335 mm")))
sketch2.addConstraint(Sketcher.Constraint("DistanceX", -1, 1, 12, 2, Q("30.979 mm")))
sketch2.addConstraint(Sketcher.Constraint("DistanceY", 13, 2, -1, 1, Q("121.314 mm")))
pocket1 = body.newObject("PartDesign::Pocket", "Pocket")
pocket1.Profile = sketch2
pocket1.setExpression("Length", "Params.pocket1_length")
pocket1.Reversed = True

sketch3 = body.newObject("Sketcher::SketchObject", "Sketch002")
sketch3.AttachmentSupport = (doc.getObject("XZ_Plane"), [""])
sketch3.MapMode = "FlatFace"
sketch3.AttachmentOffset = App.Placement(App.Vector(0, 0, -2), App.Rotation())
sketch3.addGeometry(Part.Circle(App.Vector(124.6044, -33.3877, 0), App.Vector(0, 0, 1), 1.7), False)
sketch3.addGeometry(Part.Circle(App.Vector(91.2168, -91.2168, 0), App.Vector(0, 0, 1), 1.7), False)
sketch3.addGeometry(Part.Circle(App.Vector(33.3877, -124.6044, 0), App.Vector(0, 0, 1), 1.7), False)
sketch3.addGeometry(Part.Circle(App.Vector(-33.3877, -124.6044, 0), App.Vector(0, 0, 1), 1.7), False)
sketch3.addGeometry(Part.Circle(App.Vector(-91.2168, -91.2168, 0), App.Vector(0, 0, 1), 1.7), False)
sketch3.addGeometry(Part.Circle(App.Vector(-124.6044, -33.3877, 0), App.Vector(0, 0, 1), 1.7), False)
sketch3.addGeometry(Part.Circle(App.Vector(-124.6044, 33.3877, 0), App.Vector(0, 0, 1), 1.7), False)
sketch3.addGeometry(Part.Circle(App.Vector(-91.2168, 91.2168, 0), App.Vector(0, 0, 1), 1.7), False)
sketch3.addGeometry(Part.Circle(App.Vector(-33.3877, 124.6044, 0), App.Vector(0, 0, 1), 1.7), False)
sketch3.addGeometry(Part.Circle(App.Vector(33.3877, 124.6044, 0), App.Vector(0, 0, 1), 1.7), False)
sketch3.addGeometry(Part.Circle(App.Vector(91.2168, 91.2168, 0), App.Vector(0, 0, 1), 1.7), False)
sketch3.addGeometry(Part.Circle(App.Vector(124.6044, 33.3877, 0), App.Vector(0, 0, 1), 1.7), False)
sketch3.addConstraint(Sketcher.Constraint("Equal", 0, 1))
sketch3.addConstraint(Sketcher.Constraint("Equal", 1, 2))
sketch3.addConstraint(Sketcher.Constraint("Equal", 2, 3))
sketch3.addConstraint(Sketcher.Constraint("Equal", 3, 4))
sketch3.addConstraint(Sketcher.Constraint("Equal", 4, 5))
sketch3.addConstraint(Sketcher.Constraint("Equal", 5, 6))
sketch3.addConstraint(Sketcher.Constraint("Equal", 6, 7))
sketch3.addConstraint(Sketcher.Constraint("Equal", 7, 8))
sketch3.addConstraint(Sketcher.Constraint("Equal", 8, 9))
sketch3.addConstraint(Sketcher.Constraint("Equal", 9, 10))
sketch3.addConstraint(Sketcher.Constraint("Equal", 10, 11))
sketch3.addConstraint(Sketcher.Constraint("Symmetric", 0, 3, 6, 3, -1, 1))
sketch3.addConstraint(Sketcher.Constraint("Symmetric", 1, 3, 7, 3, -1, 1))
sketch3.addConstraint(Sketcher.Constraint("Symmetric", 2, 3, 8, 3, -1, 1))
sketch3.addConstraint(Sketcher.Constraint("Symmetric", 3, 3, 9, 3, -1, 1))
sketch3.addConstraint(Sketcher.Constraint("Symmetric", 4, 3, 10, 3, -1, 1))
sketch3.addConstraint(Sketcher.Constraint("Symmetric", 5, 3, 11, 3, -1, 1))
sketch3.addConstraint(Sketcher.Constraint("Symmetric", 2, 3, 3, 3, -2))
sketch3.addConstraint(Sketcher.Constraint("Symmetric", 1, 3, 4, 3, -2))
sketch3.addConstraint(Sketcher.Constraint("Symmetric", 0, 3, 5, 3, -2))
sketch3.addConstraint(Sketcher.Constraint("Diameter", 0, Q("3.4 mm")))
sketch3.addConstraint(Sketcher.Constraint("DistanceY", 1, 3, 0, 3, Q("57.829 mm")))
sketch3.addConstraint(Sketcher.Constraint("DistanceX", 2, 3, 1, 3, Q("57.829 mm")))
sketch3.addConstraint(Sketcher.Constraint("DistanceX", 3, 3, 0, 3, Q("157.992 mm")))
sketch3.addConstraint(Sketcher.Constraint("DistanceY", 3, 3, 6, 3, Q("157.992 mm")))
sketch3.addConstraint(Sketcher.Constraint("DistanceX", -1, 1, 0, 3, Q("124.6044 mm")))
sketch3.addConstraint(Sketcher.Constraint("DistanceY", 0, 3, -1, 1, Q("33.3877 mm")))
sketch3.setExpression("Constraints[20]", "Params.sketch3_diameter")
pocket2 = body.newObject("PartDesign::Pocket", "Pocket001")
pocket2.Profile = sketch3
pocket2.Type = "ThroughAll"
pocket2.Reversed = True

doc.recompute()
